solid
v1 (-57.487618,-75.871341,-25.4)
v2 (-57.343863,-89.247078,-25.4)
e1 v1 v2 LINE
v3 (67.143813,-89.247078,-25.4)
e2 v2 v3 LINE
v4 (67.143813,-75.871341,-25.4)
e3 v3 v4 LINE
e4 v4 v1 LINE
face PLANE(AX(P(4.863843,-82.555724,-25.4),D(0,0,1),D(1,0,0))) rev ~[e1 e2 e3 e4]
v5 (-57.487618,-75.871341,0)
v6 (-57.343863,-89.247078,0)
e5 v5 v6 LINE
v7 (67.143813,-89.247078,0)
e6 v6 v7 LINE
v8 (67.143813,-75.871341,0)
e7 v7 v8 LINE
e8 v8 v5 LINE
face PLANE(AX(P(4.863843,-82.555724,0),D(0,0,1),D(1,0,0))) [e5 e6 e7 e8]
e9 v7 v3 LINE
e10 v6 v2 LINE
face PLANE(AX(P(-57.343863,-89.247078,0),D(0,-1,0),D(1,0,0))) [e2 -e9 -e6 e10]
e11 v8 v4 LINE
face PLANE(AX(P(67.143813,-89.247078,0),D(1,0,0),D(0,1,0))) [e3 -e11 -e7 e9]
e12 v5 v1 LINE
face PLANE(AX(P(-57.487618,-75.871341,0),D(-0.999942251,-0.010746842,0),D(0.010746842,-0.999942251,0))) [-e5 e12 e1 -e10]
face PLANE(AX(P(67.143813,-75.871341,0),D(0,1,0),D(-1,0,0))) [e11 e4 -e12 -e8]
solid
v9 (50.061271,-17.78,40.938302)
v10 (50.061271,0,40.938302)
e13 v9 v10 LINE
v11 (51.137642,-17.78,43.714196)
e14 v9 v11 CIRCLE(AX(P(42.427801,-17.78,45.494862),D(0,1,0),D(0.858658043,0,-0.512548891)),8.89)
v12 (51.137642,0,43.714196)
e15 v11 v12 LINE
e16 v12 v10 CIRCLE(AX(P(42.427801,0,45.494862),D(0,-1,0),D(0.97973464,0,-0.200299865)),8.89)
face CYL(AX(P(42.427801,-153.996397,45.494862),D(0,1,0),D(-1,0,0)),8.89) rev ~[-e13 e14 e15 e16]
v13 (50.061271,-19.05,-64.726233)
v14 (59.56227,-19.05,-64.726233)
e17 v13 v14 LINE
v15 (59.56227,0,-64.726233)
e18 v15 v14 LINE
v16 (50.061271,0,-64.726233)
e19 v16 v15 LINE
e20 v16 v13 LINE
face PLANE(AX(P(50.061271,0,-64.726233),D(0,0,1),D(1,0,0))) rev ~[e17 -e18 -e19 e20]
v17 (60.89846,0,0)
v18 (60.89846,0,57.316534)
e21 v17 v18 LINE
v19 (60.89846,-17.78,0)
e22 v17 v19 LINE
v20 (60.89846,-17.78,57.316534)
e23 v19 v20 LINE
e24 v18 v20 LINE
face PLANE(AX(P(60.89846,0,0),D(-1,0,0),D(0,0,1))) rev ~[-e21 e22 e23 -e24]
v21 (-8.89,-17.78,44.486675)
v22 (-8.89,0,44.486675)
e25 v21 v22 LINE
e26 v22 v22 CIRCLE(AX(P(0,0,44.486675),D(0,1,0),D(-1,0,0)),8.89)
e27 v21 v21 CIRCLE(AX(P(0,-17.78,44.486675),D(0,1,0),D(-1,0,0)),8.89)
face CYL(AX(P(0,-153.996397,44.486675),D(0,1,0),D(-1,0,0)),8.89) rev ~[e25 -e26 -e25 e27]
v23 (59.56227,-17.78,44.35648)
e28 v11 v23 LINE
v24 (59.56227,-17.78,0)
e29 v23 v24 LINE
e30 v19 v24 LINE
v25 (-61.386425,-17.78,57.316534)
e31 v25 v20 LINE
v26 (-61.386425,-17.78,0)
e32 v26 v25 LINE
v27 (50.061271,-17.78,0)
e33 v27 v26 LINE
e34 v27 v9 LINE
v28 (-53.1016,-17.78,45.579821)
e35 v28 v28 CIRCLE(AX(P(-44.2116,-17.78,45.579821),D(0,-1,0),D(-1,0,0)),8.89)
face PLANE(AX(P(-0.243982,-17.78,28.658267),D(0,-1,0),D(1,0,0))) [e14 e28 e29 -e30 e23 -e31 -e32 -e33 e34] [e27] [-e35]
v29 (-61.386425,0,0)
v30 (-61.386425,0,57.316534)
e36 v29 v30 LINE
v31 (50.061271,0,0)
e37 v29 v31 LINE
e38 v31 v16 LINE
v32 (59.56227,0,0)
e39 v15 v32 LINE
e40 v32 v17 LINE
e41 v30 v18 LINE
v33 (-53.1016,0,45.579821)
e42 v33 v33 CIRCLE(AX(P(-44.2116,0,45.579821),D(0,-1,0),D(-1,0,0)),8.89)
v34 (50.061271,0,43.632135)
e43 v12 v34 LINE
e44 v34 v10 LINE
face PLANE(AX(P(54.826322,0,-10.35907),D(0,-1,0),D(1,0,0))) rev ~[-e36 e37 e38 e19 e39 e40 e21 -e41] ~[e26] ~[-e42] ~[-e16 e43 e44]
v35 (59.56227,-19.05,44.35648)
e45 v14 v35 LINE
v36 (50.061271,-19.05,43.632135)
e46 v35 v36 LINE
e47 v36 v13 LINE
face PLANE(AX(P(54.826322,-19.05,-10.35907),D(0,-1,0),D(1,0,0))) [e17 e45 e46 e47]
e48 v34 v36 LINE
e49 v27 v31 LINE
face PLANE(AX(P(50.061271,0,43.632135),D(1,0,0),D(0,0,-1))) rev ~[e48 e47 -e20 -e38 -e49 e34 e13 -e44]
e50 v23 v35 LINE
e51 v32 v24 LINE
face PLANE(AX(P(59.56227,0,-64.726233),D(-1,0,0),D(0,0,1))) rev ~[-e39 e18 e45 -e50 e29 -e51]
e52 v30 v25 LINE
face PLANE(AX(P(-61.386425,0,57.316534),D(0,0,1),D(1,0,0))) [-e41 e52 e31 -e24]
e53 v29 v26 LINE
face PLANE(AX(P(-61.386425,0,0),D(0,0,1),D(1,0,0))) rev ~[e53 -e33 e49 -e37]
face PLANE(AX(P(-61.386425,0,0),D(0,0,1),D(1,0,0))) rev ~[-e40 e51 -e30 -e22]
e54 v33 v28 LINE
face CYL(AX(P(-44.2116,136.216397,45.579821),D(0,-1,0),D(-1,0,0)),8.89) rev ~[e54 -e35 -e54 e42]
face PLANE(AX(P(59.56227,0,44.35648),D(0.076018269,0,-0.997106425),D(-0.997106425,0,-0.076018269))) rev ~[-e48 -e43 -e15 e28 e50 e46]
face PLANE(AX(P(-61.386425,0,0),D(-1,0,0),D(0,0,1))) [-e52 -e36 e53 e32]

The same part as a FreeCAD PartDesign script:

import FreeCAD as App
import Part
import Sketcher
from FreeCAD import Vector
Q = App.Units.Quantity


def add_polygon(sketch, points):
    """Adds a closed chain of lines whose ends are joined by coincident constraints."""
    first, n = sketch.GeometryCount, len(points)
    for a, b in zip(points, points[1:] + points[:1]):
        sketch.addGeometry(Part.LineSegment(App.Vector(*a, 0), App.Vector(*b, 0)), False)
    for i in range(n):
        sketch.addConstraint(Sketcher.Constraint("Coincident", first + i, 2, first + (i + 1) % n, 1))

doc = App.newDocument("Part")
body = doc.addObject("PartDesign::Body", "Body")

sketch1 = doc.addObject("Sketcher::SketchObject", "Sketch")
body.addObject(sketch1)
sketch1.AttachmentSupport = (doc.XZ_Plane, [""])
sketch1.MapMode = "FlatFace"
add_polygon(sketch1, [(61, 56), (-61, 57), (-61, 0), (61, 0)])
sketch1.addConstraint([
    Sketcher.Constraint("Vertical", 1),
    Sketcher.Constraint("Horizontal", 2),
    Sketcher.Constraint("Vertical", 3),
    Sketcher.Constraint("PointOnObject", 1, 2, -1),
    Sketcher.Constraint("DistanceX", 2, 1, 2, 2, Q("121.36922 mm")),
    Sketcher.Constraint("DistanceY", 1, 2, 1, 1, Q("56.805979 mm")),
    Sketcher.Constraint("DistanceY", 3, 1, 3, 2, Q("56.285482 mm")),
    Sketcher.Constraint("DistanceX", 0, 2, -1, 1, Q("60.642365 mm")),
])
pad1 = doc.addObject("PartDesign::Pad", "Pad")
body.addObject(pad1)
pad1.Profile = sketch1
pad1.Length = Q("0.7 in")

sketch2 = doc.addObject("Sketcher::SketchObject", "Sketch001")
body.addObject(sketch2)
sketch2.AttachmentSupport = (doc.XZ_Plane, [""])
sketch2.MapMode = "FlatFace"
add_polygon(sketch2, [(-61, 57), (-61, 0), (61, 0), (61, 57)])
sketch2.addConstraint([
    Sketcher.Constraint("Vertical", 0),
    Sketcher.Constraint("Horizontal", 1),
    Sketcher.Constraint("Vertical", 2),
    Sketcher.Constraint("Horizontal", 3),
    Sketcher.Constraint("PointOnObject", 0, 2, -1),
    Sketcher.Constraint("DistanceX", 1, 1, 1, 2, Q("122.284885 mm")),
    Sketcher.Constraint("DistanceY", 0, 2, 0, 1, Q("57.316534 mm")),
    Sketcher.Constraint("DistanceX", -1, 1, 1, 2, Q("60.89846 mm")),
])
pad2 = doc.addObject("PartDesign::Pad", "Pad001")
body.addObject(pad2)
pad2.Profile = sketch2
pad2.Length = Q("0.7 in")

sketch3 = doc.addObject("Sketcher::SketchObject", "Sketch002")
body.addObject(sketch3)
sketch3.AttachmentSupport = (doc.XZ_Plane, [""])
sketch3.MapMode = "FlatFace"
sketch3.addGeometry(Part.Circle(Vector(-44, 46, 0), Vector(0, 0, 1), 9), False)
sketch3.addConstraint([
    Sketcher.Constraint("Diameter", 0, Q("0.7 in")),
    Sketcher.Constraint("DistanceX", 0, 3, -1, 1, Q("44.2116 mm")),
    Sketcher.Constraint("DistanceY", -1, 1, 0, 3, Q("45.579821 mm")),
])
doc.recompute()
hole = doc.addObject("PartDesign::Hole", "Hole")
body.addObject(hole)
hole.Profile = sketch3
hole.ThreadType = "None"
hole.Diameter = Q("0.7 in")
hole.DepthType = "ThroughAll"
hole.Reversed = True

sketch4 = doc.addObject("Sketcher::SketchObject", "Sketch003")
body.addObject(sketch4)
sketch4.AttachmentSupport = (doc.XZ_Plane, [""])
sketch4.MapMode = "FlatFace"
sketch4.AttachmentOffset = App.Placement(Vector(0, 0, 0.7 * 25.4), App.Rotation())
sketch4.addGeometry(Part.Circle(Vector(0, 44, 0), Vector(0, 0, 1), 9), False)
sketch4.addConstraint([
    Sketcher.Constraint("PointOnObject", 0, 3, -2),
    Sketcher.Constraint("Diameter", 0, Q("0.7 in")),
    Sketcher.Constraint("DistanceY", -1, 1, 0, 3, Q("44.486675 mm")),
])
doc.recompute()
hole2 = doc.addObject("PartDesign::Hole", "Hole001")
body.addObject(hole2)
hole2.Profile = sketch4
hole2.ThreadType = "None"
hole2.Diameter = Q("0.7 in")
hole2.DepthType = "ThroughAll"

sketch5 = doc.addObject("Sketcher::SketchObject", "Sketch004")
body.addObject(sketch5)
sketch5.AttachmentSupport = (doc.XZ_Plane, [""])
sketch5.MapMode = "FlatFace"
sketch5.AttachmentOffset = App.Placement(Vector(0, 0, 0.7 * 25.4), App.Rotation())
sketch5.addGeometry(Part.Circle(Vector(42, 45, 0), Vector(0, 0, 1), 9), False)
sketch5.addConstraint([
    Sketcher.Constraint("Diameter", 0, Q("0.7 in")),
    Sketcher.Constraint("DistanceX", -1, 1, 0, 3, Q("42.427801 mm")),
    Sketcher.Constraint("DistanceY", -1, 1, 0, 3, Q("45.494862 mm")),
])
doc.recompute()
hole3 = doc.addObject("PartDesign::Hole", "Hole002")
body.addObject(hole3)
hole3.Profile = sketch5
hole3.ThreadType = "None"
hole3.Diameter = Q("0.7 in")
hole3.DepthType = "ThroughAll"

sketch6 = doc.addObject("Sketcher::SketchObject", "Sketch005")
body.addObject(sketch6)
sketch6.AttachmentSupport = (doc.XZ_Plane, [""])
sketch6.MapMode = "FlatFace"
add_polygon(sketch6, [(59.56227, -64.726233), (59.56227, 44.35648), (50.061271, 43.632135), (50.061271, -64.726233)])
sketch6.addConstraint([
    Sketcher.Constraint("Vertical", 0),
    Sketcher.Constraint("Vertical", 2),
    Sketcher.Constraint("Horizontal", 3),
    Sketcher.Constraint("DistanceX", 3, 1, 3, 2, Q("9.500999 mm")),
    Sketcher.Constraint("DistanceY", 2, 2, 2, 1, Q("108.358368 mm")),
    Sketcher.Constraint("Distance", 1, Q("9.528571 mm")),
    Sketcher.Constraint("DistanceX", -1, 1, 0, 2, Q("59.56227 mm")),
    Sketcher.Constraint("DistanceY", -1, 1, 0, 2, Q("44.35648 mm")),
])
pad3 = doc.addObject("PartDesign::Pad", "Pad002")
body.addObject(pad3)
pad3.Profile = sketch6
pad3.Length = Q("0.75 in")
body2 = doc.addObject("PartDesign::Body", "Body001")

sketch7 = doc.addObject("Sketcher::SketchObject", "Sketch006")
body2.addObject(sketch7)
sketch7.AttachmentSupport = (doc.getObject("XY_Plane001"), [""])
sketch7.MapMode = "FlatFace"
add_polygon(sketch7, [(67, -76), (-57, -76), (-57, -89), (67, -89)])
sketch7.addConstraint([
    Sketcher.Constraint("Horizontal", 0),
    Sketcher.Constraint("Horizontal", 2),
    Sketcher.Constraint("Vertical", 3),
    Sketcher.Constraint("DistanceX", 0, 2, 0, 1, Q("124.631431 mm")),
    Sketcher.Constraint("Distance", 1, Q("13.376509 mm")),
    Sketcher.Constraint("DistanceX", 2, 1, 2, 2, Q("124.487676 mm")),
    Sketcher.Constraint("DistanceX", 0, 2, -1, 1, Q("57.487618 mm")),
    Sketcher.Constraint("DistanceY", 0, 2, -1, 1, Q("75.871341 mm")),
])
pad4 = doc.addObject("PartDesign::Pad", "Pad003")
body2.addObject(pad4)
pad4.Profile = sketch7
pad4.Length = Q("1 in")
pad4.Reversed = True

doc.recompute()
